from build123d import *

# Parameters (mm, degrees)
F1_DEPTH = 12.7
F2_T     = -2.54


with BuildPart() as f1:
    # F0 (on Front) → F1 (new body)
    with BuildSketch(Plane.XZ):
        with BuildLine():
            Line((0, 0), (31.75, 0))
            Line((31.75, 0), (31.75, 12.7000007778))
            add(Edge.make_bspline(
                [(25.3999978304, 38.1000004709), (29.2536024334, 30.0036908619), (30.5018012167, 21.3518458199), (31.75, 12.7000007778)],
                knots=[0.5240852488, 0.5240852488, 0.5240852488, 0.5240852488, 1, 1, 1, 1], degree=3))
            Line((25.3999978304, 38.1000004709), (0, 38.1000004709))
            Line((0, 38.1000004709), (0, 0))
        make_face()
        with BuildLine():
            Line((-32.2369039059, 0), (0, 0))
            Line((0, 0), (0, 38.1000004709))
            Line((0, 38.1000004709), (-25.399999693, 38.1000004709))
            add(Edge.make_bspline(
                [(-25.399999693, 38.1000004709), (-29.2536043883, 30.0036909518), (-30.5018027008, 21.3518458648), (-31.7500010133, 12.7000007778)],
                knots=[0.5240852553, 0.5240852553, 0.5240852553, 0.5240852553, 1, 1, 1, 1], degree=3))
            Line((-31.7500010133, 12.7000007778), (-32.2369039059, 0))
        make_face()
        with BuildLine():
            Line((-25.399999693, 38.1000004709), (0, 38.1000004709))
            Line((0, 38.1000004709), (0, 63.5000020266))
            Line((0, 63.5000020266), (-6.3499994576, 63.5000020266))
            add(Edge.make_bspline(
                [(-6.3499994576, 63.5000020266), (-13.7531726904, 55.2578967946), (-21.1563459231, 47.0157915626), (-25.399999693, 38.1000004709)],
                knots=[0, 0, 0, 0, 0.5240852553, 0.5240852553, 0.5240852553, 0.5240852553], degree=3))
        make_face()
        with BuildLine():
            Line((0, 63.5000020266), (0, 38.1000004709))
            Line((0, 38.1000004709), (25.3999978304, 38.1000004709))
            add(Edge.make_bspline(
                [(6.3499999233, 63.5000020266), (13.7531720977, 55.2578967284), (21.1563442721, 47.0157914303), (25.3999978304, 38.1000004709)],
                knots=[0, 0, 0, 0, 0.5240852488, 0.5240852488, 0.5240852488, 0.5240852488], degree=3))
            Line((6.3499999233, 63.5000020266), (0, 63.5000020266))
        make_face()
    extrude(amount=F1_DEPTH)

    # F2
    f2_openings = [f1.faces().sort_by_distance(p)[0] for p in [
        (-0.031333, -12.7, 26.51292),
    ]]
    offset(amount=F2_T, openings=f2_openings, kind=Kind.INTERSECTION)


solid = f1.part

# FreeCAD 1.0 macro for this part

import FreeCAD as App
import Part
import Sketcher
from FreeCAD import Vector
Q = App.Units.Quantity


def faces_at(feature, points):
    """Names of the faces that lie closest to the given points."""
    faces = feature.Shape.Faces
    near = lambda p: min(range(len(faces)), key=lambda i: faces[i].distToShape(Part.Vertex(*p))[0])
    return sorted({f"Face{near(p) + 1}" for p in points})

doc = App.newDocument("Part")
body = doc.addObject("PartDesign::Body", "Body")

sketch1 = doc.addObject("Sketcher::SketchObject", "Sketch")
body.addObject(sketch1)
sketch1.AttachmentSupport = (doc.XZ_Plane, [""])
sketch1.MapMode = "FlatFace"
sketch1.addGeometry([
    Part.LineSegment(Vector(31.75, 0, 0), Vector(31.75, 12.700001, 0)),
    Part.BSplineCurve([Vector(25.399998, 38.1, 0), Vector(29.253602, 30.003691, 0), Vector(30.501801, 21.351846, 0), Vector(31.75, 12.700001, 0)], [4, 4], [0.524085249, 1], False, 3, [1, 1, 1, 1], False),
    Part.BSplineCurve([Vector(6.35, 63.500002, 0), Vector(13.753172, 55.257897, 0), Vector(21.156344, 47.015791, 0), Vector(25.399998, 38.1, 0)], [4, 4], [0, 0.524085249], False, 3, [1, 1, 1, 1], False),
    Part.LineSegment(Vector(6.35, 63.500002, 0), Vector(-6.349999, 63.500002, 0)),
    Part.BSplineCurve([Vector(-6.349999, 63.500002, 0), Vector(-13.753173, 55.257897, 0), Vector(-21.156346, 47.015792, 0), Vector(-25.4, 38.1, 0)], [4, 4], [0, 0.524085255], False, 3, [1, 1, 1, 1], False),
    Part.BSplineCurve([Vector(-25.4, 38.1, 0), Vector(-29.253604, 30.003691, 0), Vector(-30.501803, 21.351846, 0), Vector(-31.750001, 12.700001, 0)], [4, 4], [0.524085255, 1], False, 3, [1, 1, 1, 1], False),
    Part.LineSegment(Vector(-31.750001, 12.700001, 0), Vector(-32.236904, 0, 0)),
    Part.LineSegment(Vector(-32.236904, 0, 0), Vector(31.75, 0, 0)),
], False)
sketch1.addConstraint([
    Sketcher.Constraint("Block", 1),
    Sketcher.Constraint("Block", 2),
    Sketcher.Constraint("Block", 4),
    Sketcher.Constraint("Block", 5),
    Sketcher.Constraint("Coincident", 0, 2, 1, 2),
    Sketcher.Constraint("Coincident", 2, 1, 3, 1),
    Sketcher.Constraint("Coincident", 3, 2, 4, 1),
    Sketcher.Constraint("Coincident", 5, 2, 6, 1),
    Sketcher.Constraint("Coincident", 6, 2, 7, 1),
    Sketcher.Constraint("Coincident", 7, 2, 0, 1),
    Sketcher.Constraint("Vertical", 0),
    Sketcher.Constraint("Horizontal", 7),
    Sketcher.Constraint("PointOnObject", 6, 2, -1),
    Sketcher.Constraint("Distance", 6, 12.709331),
])
pad1 = doc.addObject("PartDesign::Pad", "Pad")
body.addObject(pad1)
pad1.Profile = sketch1
pad1.Length = Q("0.5 in")
doc.recompute()

thickness = doc.addObject("PartDesign::Thickness", "Thickness")
body.addObject(thickness)
thickness.Base = (pad1, faces_at(pad1, [(-0.243, -12.7, 31.75)]))
thickness.Value = Q("0.1 in")
thickness.Reversed = True
thickness.Join = "Intersection"

doc.recompute()
